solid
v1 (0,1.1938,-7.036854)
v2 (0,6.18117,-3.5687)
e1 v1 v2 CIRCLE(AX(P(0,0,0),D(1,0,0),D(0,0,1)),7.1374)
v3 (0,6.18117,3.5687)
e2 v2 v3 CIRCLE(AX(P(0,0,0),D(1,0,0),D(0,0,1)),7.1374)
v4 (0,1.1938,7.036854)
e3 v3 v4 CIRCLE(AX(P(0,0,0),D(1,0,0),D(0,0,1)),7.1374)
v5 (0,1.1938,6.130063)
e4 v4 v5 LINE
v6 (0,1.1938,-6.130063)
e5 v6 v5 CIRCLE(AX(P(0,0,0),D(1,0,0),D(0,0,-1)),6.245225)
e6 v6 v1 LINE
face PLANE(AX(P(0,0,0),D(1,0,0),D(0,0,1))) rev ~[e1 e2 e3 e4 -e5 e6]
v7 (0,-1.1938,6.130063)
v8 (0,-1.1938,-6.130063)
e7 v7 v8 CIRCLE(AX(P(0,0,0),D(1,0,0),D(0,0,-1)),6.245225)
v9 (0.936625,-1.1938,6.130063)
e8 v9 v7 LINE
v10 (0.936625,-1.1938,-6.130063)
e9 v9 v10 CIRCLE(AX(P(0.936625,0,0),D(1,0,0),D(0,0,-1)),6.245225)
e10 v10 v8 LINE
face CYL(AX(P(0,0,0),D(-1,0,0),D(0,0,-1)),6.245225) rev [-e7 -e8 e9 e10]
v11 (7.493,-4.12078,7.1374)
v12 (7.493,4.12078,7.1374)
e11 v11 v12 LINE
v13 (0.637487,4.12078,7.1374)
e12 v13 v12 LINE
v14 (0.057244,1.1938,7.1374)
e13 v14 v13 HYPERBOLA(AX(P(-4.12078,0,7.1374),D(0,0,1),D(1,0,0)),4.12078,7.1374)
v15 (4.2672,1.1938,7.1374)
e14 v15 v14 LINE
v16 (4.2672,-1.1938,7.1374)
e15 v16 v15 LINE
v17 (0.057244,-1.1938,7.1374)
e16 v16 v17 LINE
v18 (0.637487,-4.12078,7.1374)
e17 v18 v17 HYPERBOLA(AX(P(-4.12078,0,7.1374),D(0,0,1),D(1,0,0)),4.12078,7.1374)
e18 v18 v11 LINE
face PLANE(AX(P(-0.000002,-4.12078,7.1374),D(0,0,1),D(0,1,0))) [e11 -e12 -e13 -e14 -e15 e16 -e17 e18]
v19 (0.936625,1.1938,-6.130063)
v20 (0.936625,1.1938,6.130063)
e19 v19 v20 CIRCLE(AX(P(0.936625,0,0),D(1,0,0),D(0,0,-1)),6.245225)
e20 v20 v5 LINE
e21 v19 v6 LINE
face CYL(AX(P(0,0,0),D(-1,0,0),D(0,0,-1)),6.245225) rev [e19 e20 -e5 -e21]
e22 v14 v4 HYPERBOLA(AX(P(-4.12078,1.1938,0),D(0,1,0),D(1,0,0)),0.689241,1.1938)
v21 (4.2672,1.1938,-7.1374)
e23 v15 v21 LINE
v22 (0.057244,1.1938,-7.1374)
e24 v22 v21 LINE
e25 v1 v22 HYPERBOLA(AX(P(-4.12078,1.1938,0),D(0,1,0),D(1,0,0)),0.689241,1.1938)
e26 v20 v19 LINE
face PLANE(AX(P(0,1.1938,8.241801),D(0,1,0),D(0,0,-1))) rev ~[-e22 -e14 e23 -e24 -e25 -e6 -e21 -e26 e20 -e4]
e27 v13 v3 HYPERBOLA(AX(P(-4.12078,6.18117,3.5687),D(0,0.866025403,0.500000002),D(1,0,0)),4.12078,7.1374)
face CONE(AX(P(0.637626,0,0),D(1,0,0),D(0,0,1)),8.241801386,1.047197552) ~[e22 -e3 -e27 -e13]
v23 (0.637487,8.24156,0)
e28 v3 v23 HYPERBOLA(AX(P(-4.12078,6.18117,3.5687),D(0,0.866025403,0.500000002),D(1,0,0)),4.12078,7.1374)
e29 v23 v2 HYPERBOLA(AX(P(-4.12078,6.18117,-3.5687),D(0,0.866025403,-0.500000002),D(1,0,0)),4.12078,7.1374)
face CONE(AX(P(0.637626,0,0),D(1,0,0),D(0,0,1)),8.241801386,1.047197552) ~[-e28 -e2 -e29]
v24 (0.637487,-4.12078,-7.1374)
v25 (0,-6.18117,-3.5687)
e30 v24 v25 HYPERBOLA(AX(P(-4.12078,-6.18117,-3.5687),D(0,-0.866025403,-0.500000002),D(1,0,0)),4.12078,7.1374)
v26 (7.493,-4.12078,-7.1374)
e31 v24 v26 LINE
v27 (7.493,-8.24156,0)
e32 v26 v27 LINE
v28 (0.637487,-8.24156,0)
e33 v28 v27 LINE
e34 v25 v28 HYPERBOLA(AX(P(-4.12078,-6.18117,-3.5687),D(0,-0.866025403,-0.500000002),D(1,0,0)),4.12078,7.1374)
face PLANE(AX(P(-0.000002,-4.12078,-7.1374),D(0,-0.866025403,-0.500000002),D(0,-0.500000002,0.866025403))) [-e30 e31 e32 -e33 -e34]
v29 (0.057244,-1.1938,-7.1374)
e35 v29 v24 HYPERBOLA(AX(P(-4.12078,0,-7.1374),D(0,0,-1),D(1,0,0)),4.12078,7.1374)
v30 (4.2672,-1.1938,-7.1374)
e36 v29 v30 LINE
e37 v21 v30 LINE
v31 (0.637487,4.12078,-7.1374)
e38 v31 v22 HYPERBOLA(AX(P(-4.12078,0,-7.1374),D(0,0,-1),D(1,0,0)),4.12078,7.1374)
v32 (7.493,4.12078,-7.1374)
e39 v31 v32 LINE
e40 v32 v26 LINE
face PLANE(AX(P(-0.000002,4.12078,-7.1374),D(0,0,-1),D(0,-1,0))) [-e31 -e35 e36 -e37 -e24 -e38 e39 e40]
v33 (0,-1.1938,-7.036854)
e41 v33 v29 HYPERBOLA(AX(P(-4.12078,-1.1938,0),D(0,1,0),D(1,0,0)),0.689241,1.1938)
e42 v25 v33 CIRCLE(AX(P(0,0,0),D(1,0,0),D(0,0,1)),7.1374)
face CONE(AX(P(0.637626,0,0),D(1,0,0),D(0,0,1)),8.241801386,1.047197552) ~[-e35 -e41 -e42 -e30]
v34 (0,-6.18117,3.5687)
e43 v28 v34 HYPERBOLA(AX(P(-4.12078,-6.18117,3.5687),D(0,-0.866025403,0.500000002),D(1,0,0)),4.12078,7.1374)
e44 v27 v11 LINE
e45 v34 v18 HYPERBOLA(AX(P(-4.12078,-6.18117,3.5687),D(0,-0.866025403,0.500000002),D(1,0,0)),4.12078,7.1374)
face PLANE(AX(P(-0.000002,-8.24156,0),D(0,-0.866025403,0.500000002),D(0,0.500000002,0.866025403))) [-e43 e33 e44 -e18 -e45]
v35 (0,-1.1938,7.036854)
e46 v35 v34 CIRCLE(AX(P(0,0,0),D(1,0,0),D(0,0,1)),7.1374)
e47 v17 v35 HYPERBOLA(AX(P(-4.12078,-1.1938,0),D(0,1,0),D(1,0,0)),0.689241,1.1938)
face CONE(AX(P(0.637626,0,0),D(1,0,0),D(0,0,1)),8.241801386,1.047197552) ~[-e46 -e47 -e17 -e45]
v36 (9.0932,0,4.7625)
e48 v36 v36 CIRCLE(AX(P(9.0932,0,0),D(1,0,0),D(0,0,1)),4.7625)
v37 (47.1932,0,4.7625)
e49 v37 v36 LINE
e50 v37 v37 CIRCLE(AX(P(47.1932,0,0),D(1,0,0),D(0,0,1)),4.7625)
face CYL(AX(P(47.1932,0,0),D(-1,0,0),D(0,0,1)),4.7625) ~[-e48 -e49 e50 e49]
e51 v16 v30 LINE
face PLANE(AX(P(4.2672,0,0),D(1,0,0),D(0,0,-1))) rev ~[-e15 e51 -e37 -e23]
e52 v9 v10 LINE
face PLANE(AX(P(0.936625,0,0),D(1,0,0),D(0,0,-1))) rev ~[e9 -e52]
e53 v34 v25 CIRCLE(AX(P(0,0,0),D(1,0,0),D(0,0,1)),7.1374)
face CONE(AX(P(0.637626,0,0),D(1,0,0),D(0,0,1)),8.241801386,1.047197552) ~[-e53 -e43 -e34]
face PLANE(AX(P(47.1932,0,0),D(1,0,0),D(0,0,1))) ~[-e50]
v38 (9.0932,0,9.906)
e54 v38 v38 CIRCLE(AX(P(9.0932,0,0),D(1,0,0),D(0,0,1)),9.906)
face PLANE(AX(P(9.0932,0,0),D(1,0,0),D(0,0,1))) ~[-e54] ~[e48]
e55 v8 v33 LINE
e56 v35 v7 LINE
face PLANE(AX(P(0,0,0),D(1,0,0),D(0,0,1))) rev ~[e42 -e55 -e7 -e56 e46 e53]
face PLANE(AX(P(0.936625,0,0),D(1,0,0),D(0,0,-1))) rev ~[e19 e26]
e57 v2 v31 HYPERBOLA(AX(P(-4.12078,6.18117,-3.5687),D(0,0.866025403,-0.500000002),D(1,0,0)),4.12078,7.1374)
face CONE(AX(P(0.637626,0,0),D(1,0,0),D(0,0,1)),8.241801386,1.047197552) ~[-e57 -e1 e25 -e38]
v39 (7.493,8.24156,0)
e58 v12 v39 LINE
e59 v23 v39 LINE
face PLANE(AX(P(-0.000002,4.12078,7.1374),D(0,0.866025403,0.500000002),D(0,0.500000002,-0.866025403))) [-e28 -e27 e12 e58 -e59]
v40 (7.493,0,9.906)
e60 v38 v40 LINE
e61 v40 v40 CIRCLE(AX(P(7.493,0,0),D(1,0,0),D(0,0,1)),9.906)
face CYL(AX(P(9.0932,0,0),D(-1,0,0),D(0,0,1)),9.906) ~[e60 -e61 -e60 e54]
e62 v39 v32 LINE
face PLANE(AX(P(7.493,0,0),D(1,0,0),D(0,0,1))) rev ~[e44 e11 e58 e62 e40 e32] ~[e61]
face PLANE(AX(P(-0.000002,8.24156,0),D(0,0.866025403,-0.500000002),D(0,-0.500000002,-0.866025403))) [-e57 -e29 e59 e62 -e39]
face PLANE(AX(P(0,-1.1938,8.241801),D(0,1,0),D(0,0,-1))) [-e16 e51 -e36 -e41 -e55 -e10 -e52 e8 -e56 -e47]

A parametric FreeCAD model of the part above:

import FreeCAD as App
import Part
import Sketcher

V = App.Vector
Q = App.Units.Quantity


def add_polygon(sketch, points):
    """Adds a closed chain of lines whose ends are joined by coincident constraints."""
    first, n = sketch.GeometryCount, len(points)
    for a, b in zip(points, points[1:] + points[:1]):
        sketch.addGeometry(Part.LineSegment(App.Vector(*a, 0), App.Vector(*b, 0)), False)
    for i in range(n):
        sketch.addConstraint(Sketcher.Constraint("Coincident", first + i, 2, first + (i + 1) % n, 1))

doc = App.newDocument("Part")
body = doc.addObject("PartDesign::Body", "Body")

sketch1 = body.newObject("Sketcher::SketchObject", "Sketch")
sketch1.AttachmentSupport = (doc.getObject("XY_Plane"), [""])
sketch1.MapMode = "FlatFace"
add_polygon(sketch1, [(9.1, 4.8), (9.1, 9.9), (7.5, 9.9), (7.5, 8.2), (0.6, 8.2), (0, 7.1), (0, 0), (47.2, 0), (47.2, 4.8)])
sketch1.addConstraint(Sketcher.Constraint("Vertical", 0))
sketch1.addConstraint(Sketcher.Constraint("Horizontal", 1))
sketch1.addConstraint(Sketcher.Constraint("Vertical", 2))
sketch1.addConstraint(Sketcher.Constraint("Horizontal", 3))
sketch1.addConstraint(Sketcher.Constraint("Vertical", 5))
sketch1.addConstraint(Sketcher.Constraint("Horizontal", 6))
sketch1.addConstraint(Sketcher.Constraint("Vertical", 7))
sketch1.addConstraint(Sketcher.Constraint("Horizontal", 8))
sketch1.addConstraint(Sketcher.Constraint("Coincident", 5, 2, -1, 1))
sketch1.addConstraint(Sketcher.Constraint("DistanceX", 8, 2, 8, 1, Q("1.5 in")))
sketch1.addConstraint(Sketcher.Constraint("Angle", 4, Q("-120 deg")))
sketch1.addConstraint(Sketcher.Constraint("DistanceX", 1, 2, 1, 1, Q("0.063 in")))
sketch1.addConstraint(Sketcher.Constraint("DistanceX", 6, 1, 6, 2, Q("1.858 in")))
sketch1.addConstraint(Sketcher.Constraint("DistanceY", 5, 2, 5, 1, Q("0.281 in")))
sketch1.addConstraint(Sketcher.Constraint("DistanceY", 7, 1, 7, 2, Q("0.1875 in")))
sketch1.addConstraint(Sketcher.Constraint("DistanceY", -1, 1, 0, 2, Q("0.39 in")))
sketch1.addConstraint(Sketcher.Constraint("DistanceY", 2, 2, 2, 1, Q("1.664199 mm")))
revolution = body.newObject("PartDesign::Revolution", "Revolution")
revolution.Profile = sketch1
revolution.ReferenceAxis = (sketch1, ["H_Axis"])
revolution.Angle = 360

sketch2 = body.newObject("Sketcher::SketchObject", "Sketch001")
sketch2.AttachmentSupport = (doc.getObject("YZ_Plane"), [""])
sketch2.MapMode = "FlatFace"
sketch2.AttachmentOffset = App.Placement(V(0, 0, -0.0000001 * 25.4), App.Rotation())
sketch2.addGeometry(Part.Circle(V(0, 0, 0), V(0, 0, 1), 10), False)
add_polygon(sketch2, [(-4, 7), (4, 7), (8, 0), (4, -7), (-4, -7), (-8, 0)])
sketch2.addConstraint(Sketcher.Constraint("Horizontal", 1))
sketch2.addConstraint(Sketcher.Constraint("Horizontal", 4))
sketch2.addConstraint(Sketcher.Constraint("Coincident", 0, 3, -1, 1))
sketch2.addConstraint(Sketcher.Constraint("Symmetric", 1, 2, 4, 2, -1, 1))
sketch2.addConstraint(Sketcher.Constraint("Symmetric", 2, 2, 5, 2, -1, 1))
sketch2.addConstraint(Sketcher.Constraint("PointOnObject", 2, 2, -1))
sketch2.addConstraint(Sketcher.Constraint("Parallel", 3, 6))
sketch2.addConstraint(Sketcher.Constraint("Vertical", 1, 2, 3, 2))
sketch2.addConstraint(Sketcher.Constraint("Angle", 2, Q("-60 deg")))
sketch2.addConstraint(Sketcher.Constraint("Diameter", 0, Q("0.7878 in")))
sketch2.addConstraint(Sketcher.Constraint("DistanceY", -1, 1, 1, 2, Q("0.281 in")))
sketch2.addConstraint(Sketcher.Constraint("DistanceX", 1, 1, 1, 2, Q("8.24156 mm")))
pocket1 = body.newObject("PartDesign::Pocket", "Pocket")
pocket1.Profile = sketch2
pocket1.Length = Q("0.2950001 in")
pocket1.Reversed = True

sketch3 = body.newObject("Sketcher::SketchObject", "Sketch002")
sketch3.AttachmentSupport = (doc.getObject("YZ_Plane"), [""])
sketch3.MapMode = "FlatFace"
add_polygon(sketch3, [(1.2, 8.2), (-1.2, 8.2), (-1.2, -8.2), (1.2, -8.2)])
sketch3.addConstraint(Sketcher.Constraint("Horizontal", 0))
sketch3.addConstraint(Sketcher.Constraint("Vertical", 1))
sketch3.addConstraint(Sketcher.Constraint("Horizontal", 2))
sketch3.addConstraint(Sketcher.Constraint("Vertical", 3))
sketch3.addConstraint(Sketcher.Constraint("Symmetric", 0, 2, 2, 2, -1, 1))
sketch3.addConstraint(Sketcher.Constraint("DistanceX", 0, 2, 0, 1, Q("0.094 in")))
sketch3.addConstraint(Sketcher.Constraint("DistanceY", -1, 1, 0, 2, Q("8.241801 mm")))
pocket2 = body.newObject("PartDesign::Pocket", "Pocket001")
pocket2.Profile = sketch3
pocket2.Length = Q("0.168 in")
pocket2.Reversed = True

sketch4 = body.newObject("Sketcher::SketchObject", "Sketch003")
sketch4.AttachmentSupport = (doc.getObject("YZ_Plane"), [""])
sketch4.MapMode = "FlatFace"
sketch4.addGeometry(Part.Circle(V(0, 0, 0), V(0, 0, 1), 6), False)
sketch4.addConstraint(Sketcher.Constraint("Coincident", 0, 3, -1, 1))
sketch4.addConstraint(Sketcher.Constraint("Diameter", 0, Q("12.49045 mm")))
pocket3 = body.newObject("PartDesign::Pocket", "Pocket002")
pocket3.Profile = sketch4
pocket3.Length = 0.936625
pocket3.Reversed = True

doc.recompute()
